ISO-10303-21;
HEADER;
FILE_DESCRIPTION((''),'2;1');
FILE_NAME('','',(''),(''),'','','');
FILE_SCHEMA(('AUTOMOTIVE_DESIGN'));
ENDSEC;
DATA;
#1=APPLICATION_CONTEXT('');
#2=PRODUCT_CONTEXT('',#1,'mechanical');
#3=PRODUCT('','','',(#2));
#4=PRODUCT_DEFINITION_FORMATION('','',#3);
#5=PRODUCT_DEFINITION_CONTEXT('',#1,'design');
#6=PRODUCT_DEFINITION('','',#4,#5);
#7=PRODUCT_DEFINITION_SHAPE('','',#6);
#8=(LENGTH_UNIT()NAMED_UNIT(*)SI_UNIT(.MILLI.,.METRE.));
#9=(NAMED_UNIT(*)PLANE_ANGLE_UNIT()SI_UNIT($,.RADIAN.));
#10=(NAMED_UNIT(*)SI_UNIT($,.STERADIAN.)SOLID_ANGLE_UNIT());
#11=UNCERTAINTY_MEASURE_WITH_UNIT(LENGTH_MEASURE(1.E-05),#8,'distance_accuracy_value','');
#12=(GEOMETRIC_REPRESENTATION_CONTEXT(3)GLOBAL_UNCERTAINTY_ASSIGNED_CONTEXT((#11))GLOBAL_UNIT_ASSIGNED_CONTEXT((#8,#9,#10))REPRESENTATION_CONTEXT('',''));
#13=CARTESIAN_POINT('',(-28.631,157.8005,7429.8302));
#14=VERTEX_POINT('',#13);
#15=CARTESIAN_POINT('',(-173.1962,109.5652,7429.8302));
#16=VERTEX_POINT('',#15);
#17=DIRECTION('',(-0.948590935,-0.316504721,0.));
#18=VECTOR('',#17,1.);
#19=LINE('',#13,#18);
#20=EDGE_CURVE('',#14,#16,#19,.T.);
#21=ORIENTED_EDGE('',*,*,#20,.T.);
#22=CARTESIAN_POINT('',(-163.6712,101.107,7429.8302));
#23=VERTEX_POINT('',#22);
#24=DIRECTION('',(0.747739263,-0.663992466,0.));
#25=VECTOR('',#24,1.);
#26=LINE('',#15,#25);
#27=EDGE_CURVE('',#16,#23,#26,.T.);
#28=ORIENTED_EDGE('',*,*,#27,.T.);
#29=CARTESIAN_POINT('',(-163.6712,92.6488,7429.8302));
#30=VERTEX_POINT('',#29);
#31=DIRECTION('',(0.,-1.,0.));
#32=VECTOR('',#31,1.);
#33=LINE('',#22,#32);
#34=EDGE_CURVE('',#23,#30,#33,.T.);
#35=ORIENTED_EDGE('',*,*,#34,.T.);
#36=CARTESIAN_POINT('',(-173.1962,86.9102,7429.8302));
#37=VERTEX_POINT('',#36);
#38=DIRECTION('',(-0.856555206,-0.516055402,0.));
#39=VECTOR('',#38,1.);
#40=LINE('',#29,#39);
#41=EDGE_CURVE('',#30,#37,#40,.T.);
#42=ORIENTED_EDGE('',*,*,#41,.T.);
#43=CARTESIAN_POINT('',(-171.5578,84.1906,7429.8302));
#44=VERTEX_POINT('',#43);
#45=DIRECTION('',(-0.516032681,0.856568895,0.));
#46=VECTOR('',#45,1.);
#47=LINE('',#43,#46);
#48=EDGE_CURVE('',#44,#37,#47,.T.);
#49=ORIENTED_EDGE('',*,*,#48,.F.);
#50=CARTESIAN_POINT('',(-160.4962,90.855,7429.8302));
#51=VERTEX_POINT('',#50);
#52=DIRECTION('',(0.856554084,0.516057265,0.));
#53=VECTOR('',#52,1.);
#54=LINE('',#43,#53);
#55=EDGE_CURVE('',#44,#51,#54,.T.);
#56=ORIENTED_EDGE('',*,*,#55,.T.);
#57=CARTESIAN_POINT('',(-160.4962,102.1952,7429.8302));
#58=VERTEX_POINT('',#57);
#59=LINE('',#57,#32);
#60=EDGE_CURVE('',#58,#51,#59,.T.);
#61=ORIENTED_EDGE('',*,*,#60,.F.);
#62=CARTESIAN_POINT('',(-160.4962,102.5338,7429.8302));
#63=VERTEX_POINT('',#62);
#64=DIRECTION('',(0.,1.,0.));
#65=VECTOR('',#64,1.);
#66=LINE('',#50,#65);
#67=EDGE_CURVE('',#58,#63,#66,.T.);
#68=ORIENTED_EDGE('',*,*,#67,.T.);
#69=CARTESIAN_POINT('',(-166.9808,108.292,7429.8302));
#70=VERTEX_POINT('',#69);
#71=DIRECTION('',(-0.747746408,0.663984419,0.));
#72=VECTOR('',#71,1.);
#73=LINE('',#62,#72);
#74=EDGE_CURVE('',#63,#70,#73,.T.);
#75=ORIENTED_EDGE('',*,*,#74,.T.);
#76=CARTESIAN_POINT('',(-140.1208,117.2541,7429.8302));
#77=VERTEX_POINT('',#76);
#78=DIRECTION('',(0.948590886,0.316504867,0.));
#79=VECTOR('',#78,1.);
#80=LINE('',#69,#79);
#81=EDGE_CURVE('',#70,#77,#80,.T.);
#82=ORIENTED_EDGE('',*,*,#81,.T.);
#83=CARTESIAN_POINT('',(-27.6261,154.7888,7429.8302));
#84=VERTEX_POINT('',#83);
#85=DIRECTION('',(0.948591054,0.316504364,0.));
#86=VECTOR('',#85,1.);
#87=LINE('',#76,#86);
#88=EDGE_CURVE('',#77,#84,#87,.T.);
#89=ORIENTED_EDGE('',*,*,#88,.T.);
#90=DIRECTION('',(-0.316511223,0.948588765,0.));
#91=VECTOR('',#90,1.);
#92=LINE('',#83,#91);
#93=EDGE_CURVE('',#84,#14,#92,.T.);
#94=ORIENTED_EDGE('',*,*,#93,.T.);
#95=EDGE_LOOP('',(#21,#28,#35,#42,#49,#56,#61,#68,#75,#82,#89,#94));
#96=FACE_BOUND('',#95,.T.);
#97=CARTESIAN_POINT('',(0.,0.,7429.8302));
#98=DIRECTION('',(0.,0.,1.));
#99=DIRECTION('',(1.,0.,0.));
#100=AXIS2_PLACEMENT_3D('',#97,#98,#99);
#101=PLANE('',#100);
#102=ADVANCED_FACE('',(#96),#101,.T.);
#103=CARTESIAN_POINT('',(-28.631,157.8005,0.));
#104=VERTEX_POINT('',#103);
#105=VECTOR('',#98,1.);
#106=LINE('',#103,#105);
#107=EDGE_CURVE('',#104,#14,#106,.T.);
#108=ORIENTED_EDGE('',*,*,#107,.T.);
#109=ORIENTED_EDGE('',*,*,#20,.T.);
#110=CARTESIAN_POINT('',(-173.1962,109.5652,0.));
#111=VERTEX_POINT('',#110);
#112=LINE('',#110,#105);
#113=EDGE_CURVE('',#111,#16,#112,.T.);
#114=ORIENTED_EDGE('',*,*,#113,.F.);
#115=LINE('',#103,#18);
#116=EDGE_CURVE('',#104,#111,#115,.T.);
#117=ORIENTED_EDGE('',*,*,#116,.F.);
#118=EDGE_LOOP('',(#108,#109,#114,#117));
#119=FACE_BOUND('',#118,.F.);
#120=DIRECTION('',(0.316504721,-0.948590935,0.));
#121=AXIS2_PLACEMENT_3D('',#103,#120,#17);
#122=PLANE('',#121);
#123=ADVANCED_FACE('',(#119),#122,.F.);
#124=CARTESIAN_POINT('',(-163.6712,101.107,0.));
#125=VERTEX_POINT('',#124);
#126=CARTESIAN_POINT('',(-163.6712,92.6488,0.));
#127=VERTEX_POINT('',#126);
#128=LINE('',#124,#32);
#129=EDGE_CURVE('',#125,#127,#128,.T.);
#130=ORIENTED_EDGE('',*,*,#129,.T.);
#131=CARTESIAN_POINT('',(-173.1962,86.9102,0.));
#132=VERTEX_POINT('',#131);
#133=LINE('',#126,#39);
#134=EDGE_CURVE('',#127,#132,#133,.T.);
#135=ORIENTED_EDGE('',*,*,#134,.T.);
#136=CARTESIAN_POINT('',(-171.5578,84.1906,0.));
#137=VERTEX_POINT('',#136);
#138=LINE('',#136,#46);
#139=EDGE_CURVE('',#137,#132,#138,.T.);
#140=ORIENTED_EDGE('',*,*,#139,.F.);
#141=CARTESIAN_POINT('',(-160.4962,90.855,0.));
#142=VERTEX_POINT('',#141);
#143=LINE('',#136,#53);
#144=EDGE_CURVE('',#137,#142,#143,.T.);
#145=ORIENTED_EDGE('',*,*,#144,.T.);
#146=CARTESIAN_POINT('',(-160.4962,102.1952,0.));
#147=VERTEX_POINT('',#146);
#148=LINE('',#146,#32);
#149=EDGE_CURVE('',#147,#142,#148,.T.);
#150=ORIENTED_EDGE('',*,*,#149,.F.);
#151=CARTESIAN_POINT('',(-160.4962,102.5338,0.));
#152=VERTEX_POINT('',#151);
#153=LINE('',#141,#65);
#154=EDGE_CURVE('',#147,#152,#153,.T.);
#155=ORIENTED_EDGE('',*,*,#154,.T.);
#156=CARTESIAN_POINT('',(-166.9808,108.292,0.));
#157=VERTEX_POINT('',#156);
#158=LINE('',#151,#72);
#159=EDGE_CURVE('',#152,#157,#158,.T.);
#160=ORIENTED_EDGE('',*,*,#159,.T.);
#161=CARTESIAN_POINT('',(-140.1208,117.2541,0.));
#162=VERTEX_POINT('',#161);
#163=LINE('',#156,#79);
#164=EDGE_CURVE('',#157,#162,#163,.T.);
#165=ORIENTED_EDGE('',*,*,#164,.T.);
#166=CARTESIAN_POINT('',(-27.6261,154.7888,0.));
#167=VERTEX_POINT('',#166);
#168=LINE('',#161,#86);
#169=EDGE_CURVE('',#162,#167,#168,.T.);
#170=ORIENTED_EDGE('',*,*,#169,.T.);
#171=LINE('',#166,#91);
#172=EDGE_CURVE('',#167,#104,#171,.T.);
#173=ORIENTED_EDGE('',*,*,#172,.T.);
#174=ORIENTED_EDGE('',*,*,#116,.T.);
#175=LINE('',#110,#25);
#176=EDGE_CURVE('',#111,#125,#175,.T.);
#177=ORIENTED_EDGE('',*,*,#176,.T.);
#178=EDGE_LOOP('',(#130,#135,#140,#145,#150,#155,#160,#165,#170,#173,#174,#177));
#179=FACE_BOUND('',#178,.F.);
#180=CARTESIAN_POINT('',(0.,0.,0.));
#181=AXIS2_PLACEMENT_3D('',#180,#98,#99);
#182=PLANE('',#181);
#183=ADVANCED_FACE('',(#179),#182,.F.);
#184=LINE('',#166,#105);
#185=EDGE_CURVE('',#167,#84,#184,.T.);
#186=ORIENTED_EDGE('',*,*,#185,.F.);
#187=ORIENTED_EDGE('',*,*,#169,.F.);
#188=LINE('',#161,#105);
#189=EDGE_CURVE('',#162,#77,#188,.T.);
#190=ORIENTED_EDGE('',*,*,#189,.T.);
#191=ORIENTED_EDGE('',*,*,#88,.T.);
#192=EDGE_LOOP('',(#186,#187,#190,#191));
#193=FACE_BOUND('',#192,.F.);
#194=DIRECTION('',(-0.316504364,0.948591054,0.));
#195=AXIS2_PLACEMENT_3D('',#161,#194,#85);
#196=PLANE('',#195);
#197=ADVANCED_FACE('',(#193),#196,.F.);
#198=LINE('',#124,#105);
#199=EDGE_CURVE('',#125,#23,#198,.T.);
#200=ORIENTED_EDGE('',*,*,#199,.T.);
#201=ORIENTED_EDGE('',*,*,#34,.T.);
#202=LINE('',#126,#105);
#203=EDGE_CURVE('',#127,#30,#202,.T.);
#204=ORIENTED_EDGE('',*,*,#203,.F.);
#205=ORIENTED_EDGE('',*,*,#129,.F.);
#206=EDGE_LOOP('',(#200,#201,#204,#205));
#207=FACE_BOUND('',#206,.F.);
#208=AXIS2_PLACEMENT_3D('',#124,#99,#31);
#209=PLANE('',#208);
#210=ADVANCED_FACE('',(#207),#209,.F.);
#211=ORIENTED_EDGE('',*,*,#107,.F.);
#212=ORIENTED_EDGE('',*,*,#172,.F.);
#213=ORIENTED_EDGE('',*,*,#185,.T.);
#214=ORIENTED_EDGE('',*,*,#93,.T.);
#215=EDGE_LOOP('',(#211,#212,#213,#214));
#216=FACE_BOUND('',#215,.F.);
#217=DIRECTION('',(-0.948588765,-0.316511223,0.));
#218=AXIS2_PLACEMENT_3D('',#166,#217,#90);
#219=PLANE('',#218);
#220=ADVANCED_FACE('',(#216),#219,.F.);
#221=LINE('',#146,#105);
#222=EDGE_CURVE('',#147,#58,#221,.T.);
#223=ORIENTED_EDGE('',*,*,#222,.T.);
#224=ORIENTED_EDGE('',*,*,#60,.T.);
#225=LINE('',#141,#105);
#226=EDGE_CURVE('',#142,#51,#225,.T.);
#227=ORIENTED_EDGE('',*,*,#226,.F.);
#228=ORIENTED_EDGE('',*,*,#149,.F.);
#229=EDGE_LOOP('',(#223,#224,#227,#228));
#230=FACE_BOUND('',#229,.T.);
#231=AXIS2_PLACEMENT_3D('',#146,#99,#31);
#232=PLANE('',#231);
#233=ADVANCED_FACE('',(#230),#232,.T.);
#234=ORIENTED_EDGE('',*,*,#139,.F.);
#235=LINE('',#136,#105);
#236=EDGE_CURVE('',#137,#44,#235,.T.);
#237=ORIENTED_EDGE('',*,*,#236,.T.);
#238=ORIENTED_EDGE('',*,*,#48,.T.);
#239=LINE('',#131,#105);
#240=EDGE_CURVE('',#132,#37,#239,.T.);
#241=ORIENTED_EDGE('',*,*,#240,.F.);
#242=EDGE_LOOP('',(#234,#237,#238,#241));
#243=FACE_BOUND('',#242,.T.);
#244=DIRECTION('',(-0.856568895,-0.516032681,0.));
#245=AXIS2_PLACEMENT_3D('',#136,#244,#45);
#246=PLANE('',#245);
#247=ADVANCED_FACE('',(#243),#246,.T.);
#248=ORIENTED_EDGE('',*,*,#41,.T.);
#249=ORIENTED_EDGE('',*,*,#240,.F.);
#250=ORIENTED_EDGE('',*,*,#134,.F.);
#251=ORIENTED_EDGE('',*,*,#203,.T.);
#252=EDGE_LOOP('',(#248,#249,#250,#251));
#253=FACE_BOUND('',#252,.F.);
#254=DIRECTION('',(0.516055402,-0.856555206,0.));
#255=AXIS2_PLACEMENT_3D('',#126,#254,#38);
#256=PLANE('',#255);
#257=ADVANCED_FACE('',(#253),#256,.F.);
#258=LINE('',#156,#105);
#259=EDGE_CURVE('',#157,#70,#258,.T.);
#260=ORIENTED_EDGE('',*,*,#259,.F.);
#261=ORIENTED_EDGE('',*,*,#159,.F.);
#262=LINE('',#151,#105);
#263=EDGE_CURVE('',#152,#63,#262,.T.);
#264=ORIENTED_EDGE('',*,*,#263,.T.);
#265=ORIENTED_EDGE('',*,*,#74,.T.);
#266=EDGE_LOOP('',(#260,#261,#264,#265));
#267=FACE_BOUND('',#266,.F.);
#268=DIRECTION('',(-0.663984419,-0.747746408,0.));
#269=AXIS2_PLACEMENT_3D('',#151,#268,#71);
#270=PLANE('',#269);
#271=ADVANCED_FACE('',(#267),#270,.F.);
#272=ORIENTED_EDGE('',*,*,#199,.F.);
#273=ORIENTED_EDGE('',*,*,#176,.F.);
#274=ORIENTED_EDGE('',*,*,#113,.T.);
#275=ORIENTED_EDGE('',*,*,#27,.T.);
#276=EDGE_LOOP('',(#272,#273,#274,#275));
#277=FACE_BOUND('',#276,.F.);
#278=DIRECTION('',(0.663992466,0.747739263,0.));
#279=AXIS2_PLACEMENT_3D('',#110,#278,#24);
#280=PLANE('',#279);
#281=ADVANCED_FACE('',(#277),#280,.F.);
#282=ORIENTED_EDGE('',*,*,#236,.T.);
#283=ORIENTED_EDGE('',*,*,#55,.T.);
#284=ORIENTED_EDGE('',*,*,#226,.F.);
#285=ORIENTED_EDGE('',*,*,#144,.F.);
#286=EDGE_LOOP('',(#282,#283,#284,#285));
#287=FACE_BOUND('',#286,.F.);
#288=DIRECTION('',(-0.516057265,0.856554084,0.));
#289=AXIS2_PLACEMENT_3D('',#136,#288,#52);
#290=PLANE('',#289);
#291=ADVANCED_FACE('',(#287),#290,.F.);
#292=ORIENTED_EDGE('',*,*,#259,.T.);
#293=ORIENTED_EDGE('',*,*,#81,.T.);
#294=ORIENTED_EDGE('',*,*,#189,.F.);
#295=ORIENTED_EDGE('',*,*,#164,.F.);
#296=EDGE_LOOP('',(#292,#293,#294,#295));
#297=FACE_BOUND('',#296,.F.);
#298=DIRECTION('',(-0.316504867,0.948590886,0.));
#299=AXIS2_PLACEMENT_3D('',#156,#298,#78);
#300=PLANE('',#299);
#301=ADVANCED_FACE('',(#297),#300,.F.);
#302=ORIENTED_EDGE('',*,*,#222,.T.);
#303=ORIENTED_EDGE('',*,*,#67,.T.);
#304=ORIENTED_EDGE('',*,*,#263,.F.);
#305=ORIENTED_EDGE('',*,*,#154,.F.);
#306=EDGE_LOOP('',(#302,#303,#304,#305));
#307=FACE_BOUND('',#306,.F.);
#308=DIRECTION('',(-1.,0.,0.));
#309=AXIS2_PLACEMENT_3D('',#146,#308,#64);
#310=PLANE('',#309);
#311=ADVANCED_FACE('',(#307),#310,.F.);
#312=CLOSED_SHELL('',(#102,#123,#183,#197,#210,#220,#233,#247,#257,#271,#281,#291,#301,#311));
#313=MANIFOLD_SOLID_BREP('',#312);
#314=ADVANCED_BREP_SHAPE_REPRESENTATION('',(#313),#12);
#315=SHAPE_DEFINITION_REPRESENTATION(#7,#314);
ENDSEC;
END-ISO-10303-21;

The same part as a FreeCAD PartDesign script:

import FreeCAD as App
import Part
import Sketcher
from FreeCAD import Vector
Q = App.Units.Quantity


def add_polygon(sketch, points):
    """Adds a closed chain of lines whose ends are joined by coincident constraints."""
    first, n = sketch.GeometryCount, len(points)
    for a, b in zip(points, points[1:] + points[:1]):
        sketch.addGeometry(Part.LineSegment(App.Vector(*a, 0), App.Vector(*b, 0)), False)
    for i in range(n):
        sketch.addConstraint(Sketcher.Constraint("Coincident", first + i, 2, first + (i + 1) % n, 1))

doc = App.newDocument("Part")
body = doc.addObject("PartDesign::Body", "Body")

# Sketch on XY plane
sketch1 = body.newObject("Sketcher::SketchObject", "Sketch")
sketch1.AttachmentSupport = (doc.getObject("XY_Plane"), [""])
sketch1.MapMode = "FlatFace"
add_polygon(sketch1, [(-160.4962, 90.855), (-160.4962, 102.5338), (-166.9808, 108.292), (-140.1208, 117.2541), (-27.6261, 154.7888), (-28.631, 157.8005), (-173.1962, 109.5652), (-163.6712, 101.107), (-163.6712, 92.6488), (-173.1962, 86.9102), (-171.5578, 84.1906)])  # lines 0-10
sketch1.addConstraint([
    Sketcher.Constraint("Vertical", 0),
    Sketcher.Constraint("Vertical", 7),
    Sketcher.Constraint("Parallel", 2, 3),
    Sketcher.Constraint("Perpendicular", 3, 4),
    Sketcher.Constraint("Perpendicular", 4, 5),
    Sketcher.Constraint("Parallel", 1, 6),
    Sketcher.Constraint("Perpendicular", 8, 9),
    Sketcher.Constraint("Perpendicular", 9, 10),
    Sketcher.Constraint("Vertical", 5, 2, 8, 2),
    Sketcher.Constraint("Equal", 4, 9),
    Sketcher.Constraint("Distance", 5, Q("6 in")),
    Sketcher.Constraint("DistanceY", 7, 2, 7, 1, Q("0.333 in")),
    Sketcher.Constraint("Distance", 4, Q("0.125 in")),
    Sketcher.Constraint("DistanceX", 6, 2, 0, 2, Q("0.125 in")),
    Sketcher.Constraint("DistanceY", 6, 2, 5, 2, Q("0.333 in")),
    Sketcher.Constraint("DistanceY", 9, 2, 7, 2, Q("0.333 in")),
    Sketcher.Constraint("DistanceX", 5, 2, 0, 2, Q("0.5 in")),
    Sketcher.Constraint("DistanceY", 0, 1, 0, 2, Q("0.4598 in")),
    Sketcher.Constraint("Distance", 2, Q("1.1148 in")),
    Sketcher.Constraint("DistanceY", -1, 1, 2, 2, Q("4.6163 in")),
    Sketcher.Constraint("DistanceX", 4, 2, -1, 1, Q("1.1272 in")),
    Sketcher.Constraint("DistanceY", -1, 1, 5, 2, Q("4.3136 in")),
])
pad1 = body.newObject("PartDesign::Pad", "Pad")
pad1.Profile = sketch1
pad1.Length = Q("292.513 in")

doc.recompute()
